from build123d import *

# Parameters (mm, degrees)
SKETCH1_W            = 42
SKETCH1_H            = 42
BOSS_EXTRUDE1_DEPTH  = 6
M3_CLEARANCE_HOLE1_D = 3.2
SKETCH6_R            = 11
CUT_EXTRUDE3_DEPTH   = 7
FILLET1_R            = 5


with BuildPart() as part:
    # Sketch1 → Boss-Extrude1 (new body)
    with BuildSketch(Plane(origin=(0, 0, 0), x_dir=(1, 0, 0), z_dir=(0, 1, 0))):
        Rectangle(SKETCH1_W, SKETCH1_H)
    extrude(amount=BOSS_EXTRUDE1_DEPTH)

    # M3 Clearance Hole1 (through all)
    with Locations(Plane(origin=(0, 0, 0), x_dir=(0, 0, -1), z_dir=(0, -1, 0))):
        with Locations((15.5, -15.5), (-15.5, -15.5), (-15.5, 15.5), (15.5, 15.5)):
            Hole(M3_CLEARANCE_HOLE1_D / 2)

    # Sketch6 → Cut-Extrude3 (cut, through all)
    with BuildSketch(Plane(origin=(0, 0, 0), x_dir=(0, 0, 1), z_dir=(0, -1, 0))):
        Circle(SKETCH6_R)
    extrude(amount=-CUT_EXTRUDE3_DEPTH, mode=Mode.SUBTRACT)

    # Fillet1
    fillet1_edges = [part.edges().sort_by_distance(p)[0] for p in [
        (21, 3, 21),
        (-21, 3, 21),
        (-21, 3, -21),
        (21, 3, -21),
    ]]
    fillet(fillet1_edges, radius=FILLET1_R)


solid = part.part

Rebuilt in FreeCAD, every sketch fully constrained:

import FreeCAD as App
import Part
import Sketcher
from FreeCAD import Vector
Q = App.Units.Quantity


def edges_at(feature, points):
    """Names of the edges that pass closest to the given points."""
    edges = feature.Shape.Edges
    near = lambda p: min(range(len(edges)), key=lambda i: edges[i].distToShape(Part.Vertex(*p))[0])
    return sorted({f"Edge{near(p) + 1}" for p in points})


def add_polygon(sketch, points):
    """Adds a closed chain of lines whose ends are joined by coincident constraints."""
    first, n = sketch.GeometryCount, len(points)
    for a, b in zip(points, points[1:] + points[:1]):
        sketch.addGeometry(Part.LineSegment(App.Vector(*a, 0), App.Vector(*b, 0)), False)
    for i in range(n):
        sketch.addConstraint(Sketcher.Constraint("Coincident", first + i, 2, first + (i + 1) % n, 1))

doc = App.newDocument("Part")
body = doc.addObject("PartDesign::Body", "Body")

sketch1 = doc.addObject("Sketcher::SketchObject", "Sketch")
body.addObject(sketch1)
sketch1.AttachmentSupport = (doc.XZ_Plane, [""])
sketch1.MapMode = "FlatFace"
add_polygon(sketch1, [(-21, -21), (-21, 21), (21, 21), (21, -21)])
sketch1.addConstraint(Sketcher.Constraint("Vertical", 0))
sketch1.addConstraint(Sketcher.Constraint("Horizontal", 1))
sketch1.addConstraint(Sketcher.Constraint("Vertical", 2))
sketch1.addConstraint(Sketcher.Constraint("Horizontal", 3))
sketch1.addConstraint(Sketcher.Constraint("Symmetric", 0, 2, 2, 2, -1, 1))
sketch1.addConstraint(Sketcher.Constraint("Equal", 3, 0))
sketch1.addConstraint(Sketcher.Constraint("DistanceX", 1, 1, 1, 2, Q("42 mm")))
pad1 = doc.addObject("PartDesign::Pad", "Pad")
body.addObject(pad1)
pad1.Profile = sketch1
pad1.Length = 6
pad1.Reversed = True

sketch2 = doc.addObject("Sketcher::SketchObject", "Sketch001")
body.addObject(sketch2)
sketch2.AttachmentSupport = (doc.XZ_Plane, [""])
sketch2.MapMode = "FlatFace"
sketch2.addGeometry(Part.Circle(Vector(-15.5, -15.5, 0), Vector(0, 0, 1), 1.6), False)
sketch2.addGeometry(Part.Circle(Vector(-15.5, 15.5, 0), Vector(0, 0, 1), 1.6), False)
sketch2.addGeometry(Part.Circle(Vector(15.5, 15.5, 0), Vector(0, 0, 1), 1.6), False)
sketch2.addGeometry(Part.Circle(Vector(15.5, -15.5, 0), Vector(0, 0, 1), 1.6), False)
sketch2.addConstraint(Sketcher.Constraint("Equal", 0, 1))
sketch2.addConstraint(Sketcher.Constraint("Equal", 1, 2))
sketch2.addConstraint(Sketcher.Constraint("Equal", 2, 3))
sketch2.addConstraint(Sketcher.Constraint("Symmetric", 0, 3, 2, 3, -1, 1))
sketch2.addConstraint(Sketcher.Constraint("Symmetric", 1, 3, 3, 3, -1, 1))
sketch2.addConstraint(Sketcher.Constraint("Symmetric", 1, 3, 2, 3, -2))
sketch2.addConstraint(Sketcher.Constraint("Diameter", 0, Q("3.2 mm")))
sketch2.addConstraint(Sketcher.Constraint("DistanceY", 0, 3, 1, 3, Q("31 mm")))
sketch2.addConstraint(Sketcher.Constraint("DistanceX", 1, 3, 2, 3, Q("31 mm")))
doc.recompute()
hole = doc.addObject("PartDesign::Hole", "Hole")
body.addObject(hole)
hole.Profile = sketch2
hole.ThreadType = "None"
hole.Diameter = 3.2
hole.DepthType = "ThroughAll"

sketch3 = doc.addObject("Sketcher::SketchObject", "Sketch002")
body.addObject(sketch3)
sketch3.AttachmentSupport = (doc.XZ_Plane, [""])
sketch3.MapMode = "FlatFace"
sketch3.addGeometry(Part.Circle(Vector(0, 0, 0), Vector(0, 0, 1), 11), False)
sketch3.addConstraint(Sketcher.Constraint("Coincident", 0, 3, -1, 1))
sketch3.addConstraint(Sketcher.Constraint("Diameter", 0, Q("22 mm")))
pocket1 = doc.addObject("PartDesign::Pocket", "Pocket")
body.addObject(pocket1)
pocket1.Profile = sketch3
pocket1.Type = "ThroughAll"
doc.recompute()

fillet = doc.addObject("PartDesign::Fillet", "Fillet")
body.addObject(fillet)
fillet.Base = (pocket1, edges_at(pocket1, [
    (21, 3, 21),
    (-21, 3, 21),
    (-21, 3, -21),
    (21, 3, -21),
]))
fillet.Radius = 5

doc.recompute()
